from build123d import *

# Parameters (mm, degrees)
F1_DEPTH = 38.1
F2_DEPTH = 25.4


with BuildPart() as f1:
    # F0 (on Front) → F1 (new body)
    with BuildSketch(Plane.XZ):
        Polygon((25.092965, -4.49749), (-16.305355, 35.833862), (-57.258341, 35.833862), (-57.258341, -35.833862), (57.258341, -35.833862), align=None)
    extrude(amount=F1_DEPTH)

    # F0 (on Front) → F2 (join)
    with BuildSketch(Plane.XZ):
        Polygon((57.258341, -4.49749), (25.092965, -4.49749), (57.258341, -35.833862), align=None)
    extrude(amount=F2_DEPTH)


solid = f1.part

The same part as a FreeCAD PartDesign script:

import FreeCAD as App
import Part
import Sketcher

V = App.Vector
Q = App.Units.Quantity


def add_polygon(sketch, points):
    """Adds a closed chain of lines whose ends are joined by coincident constraints."""
    first, n = sketch.GeometryCount, len(points)
    for a, b in zip(points, points[1:] + points[:1]):
        sketch.addGeometry(Part.LineSegment(App.Vector(*a, 0), App.Vector(*b, 0)), False)
    for i in range(n):
        sketch.addConstraint(Sketcher.Constraint("Coincident", first + i, 2, first + (i + 1) % n, 1))

doc = App.newDocument("Part")
body = doc.addObject("PartDesign::Body", "Body")

sketch1 = body.newObject("Sketcher::SketchObject", "Sketch")
sketch1.AttachmentSupport = (doc.getObject("XZ_Plane"), [""])
sketch1.MapMode = "FlatFace"
add_polygon(sketch1, [(25, -4), (-16, 36), (-57, 36), (-57, -36), (57, -36)])
sketch1.addConstraint(Sketcher.Constraint("Horizontal", 1))
sketch1.addConstraint(Sketcher.Constraint("Vertical", 2))
sketch1.addConstraint(Sketcher.Constraint("Horizontal", 3))
sketch1.addConstraint(Sketcher.Constraint("Symmetric", 1, 2, 3, 2, -1, 1))
sketch1.addConstraint(Sketcher.Constraint("Parallel", 0, 4))
sketch1.addConstraint(Sketcher.Constraint("Distance", 0, Q("57.79653 mm")))
sketch1.addConstraint(Sketcher.Constraint("DistanceX", 1, 2, 1, 1, Q("40.952986 mm")))
sketch1.addConstraint(Sketcher.Constraint("DistanceX", 3, 1, 3, 2, Q("114.516682 mm")))
sketch1.addConstraint(Sketcher.Constraint("DistanceY", 2, 2, 2, 1, Q("71.667724 mm")))
pad1 = body.newObject("PartDesign::Pad", "Pad")
pad1.Profile = sketch1
pad1.Length = Q("1.5 in")

sketch2 = body.newObject("Sketcher::SketchObject", "Sketch001")
sketch2.AttachmentSupport = (doc.getObject("XZ_Plane"), [""])
sketch2.MapMode = "FlatFace"
add_polygon(sketch2, [(57, -4), (25, -4), (57, -36)])
sketch2.addConstraint(Sketcher.Constraint("Horizontal", 0))
sketch2.addConstraint(Sketcher.Constraint("Vertical", 2))
sketch2.addConstraint(Sketcher.Constraint("DistanceX", 0, 2, 0, 1, Q("32.165376 mm")))
sketch2.addConstraint(Sketcher.Constraint("DistanceY", 2, 1, 2, 2, Q("31.336372 mm")))
sketch2.addConstraint(Sketcher.Constraint("DistanceY", 0, 2, -1, 1, Q("4.49749 mm")))
sketch2.addConstraint(Sketcher.Constraint("DistanceX", -1, 1, 1, 2, Q("57.258341 mm")))
pad2 = body.newObject("PartDesign::Pad", "Pad001")
pad2.Profile = sketch2
pad2.Length = Q("1 in")

doc.recompute()
